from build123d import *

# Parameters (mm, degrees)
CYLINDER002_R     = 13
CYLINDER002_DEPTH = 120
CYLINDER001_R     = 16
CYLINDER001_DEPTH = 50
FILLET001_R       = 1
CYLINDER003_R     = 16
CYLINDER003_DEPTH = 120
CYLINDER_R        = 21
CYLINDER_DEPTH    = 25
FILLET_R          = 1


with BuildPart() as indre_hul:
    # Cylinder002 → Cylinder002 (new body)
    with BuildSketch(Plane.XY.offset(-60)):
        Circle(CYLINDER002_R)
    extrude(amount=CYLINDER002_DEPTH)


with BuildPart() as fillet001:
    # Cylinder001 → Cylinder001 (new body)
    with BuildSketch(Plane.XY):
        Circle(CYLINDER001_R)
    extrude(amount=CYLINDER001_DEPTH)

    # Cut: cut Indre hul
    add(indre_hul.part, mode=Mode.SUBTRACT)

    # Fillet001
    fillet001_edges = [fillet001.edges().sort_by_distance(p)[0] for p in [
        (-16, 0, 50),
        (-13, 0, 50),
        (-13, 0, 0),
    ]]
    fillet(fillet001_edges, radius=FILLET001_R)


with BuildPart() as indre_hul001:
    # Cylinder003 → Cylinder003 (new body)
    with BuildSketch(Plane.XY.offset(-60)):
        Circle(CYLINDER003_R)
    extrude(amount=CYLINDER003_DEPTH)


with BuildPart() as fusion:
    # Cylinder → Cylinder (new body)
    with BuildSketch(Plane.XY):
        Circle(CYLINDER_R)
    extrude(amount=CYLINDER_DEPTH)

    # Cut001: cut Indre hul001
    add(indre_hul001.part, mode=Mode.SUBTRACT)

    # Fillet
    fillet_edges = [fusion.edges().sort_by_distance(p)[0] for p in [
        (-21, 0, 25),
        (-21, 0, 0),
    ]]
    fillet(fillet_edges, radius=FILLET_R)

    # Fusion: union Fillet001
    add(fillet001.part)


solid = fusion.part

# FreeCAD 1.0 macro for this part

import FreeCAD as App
import Part
import Sketcher

V = App.Vector
Q = App.Units.Quantity


def edges_at(feature, points):
    """Names of the edges that pass closest to the given points."""
    edges = feature.Shape.Edges
    near = lambda p: min(range(len(edges)), key=lambda i: edges[i].distToShape(Part.Vertex(*p))[0])
    return sorted({f"Edge{near(p) + 1}" for p in points})

doc = App.newDocument("Part")
body = doc.addObject("PartDesign::Body", "Body")

sketch1 = body.newObject("Sketcher::SketchObject", "Sketch")
sketch1.AttachmentSupport = (doc.getObject("XY_Plane"), [""])
sketch1.MapMode = "FlatFace"
sketch1.AttachmentOffset = App.Placement(V(0, 0, -60), App.Rotation())
sketch1.addGeometry(Part.Circle(V(0, 0, 0), V(0, 0, 1), 13), False)
sketch1.addConstraint([
    Sketcher.Constraint("Coincident", 0, 3, -1, 1),
    Sketcher.Constraint("Diameter", 0, Q("26 mm")),
])
pad1 = body.newObject("PartDesign::Pad", "Pad")
pad1.Profile = sketch1
pad1.Length = 120
body2 = doc.addObject("PartDesign::Body", "Body001")

sketch2 = body2.newObject("Sketcher::SketchObject", "Sketch001")
sketch2.AttachmentSupport = (doc.getObject("XY_Plane001"), [""])
sketch2.MapMode = "FlatFace"
sketch2.addGeometry(Part.Circle(V(0, 0, 0), V(0, 0, 1), 16), False)
sketch2.addConstraint([
    Sketcher.Constraint("Coincident", 0, 3, -1, 1),
    Sketcher.Constraint("Diameter", 0, Q("32 mm")),
])
pad2 = body2.newObject("PartDesign::Pad", "Pad001")
pad2.Profile = sketch2
pad2.Length = 50
doc.recompute()

boolean = body2.newObject("PartDesign::Boolean", "Boolean")
boolean.Type = "Cut"
boolean.addObjects([body])
doc.recompute()

fillet = body2.newObject("PartDesign::Fillet", "Fillet")
fillet.Base = (boolean, edges_at(boolean, [(-16, 0, 50), (-13, 0, 50), (-13, 0, 0)]))
fillet.Radius = 1
body3 = doc.addObject("PartDesign::Body", "Body002")

sketch3 = body3.newObject("Sketcher::SketchObject", "Sketch002")
sketch3.AttachmentSupport = (doc.getObject("XY_Plane002"), [""])
sketch3.MapMode = "FlatFace"
sketch3.AttachmentOffset = App.Placement(V(0, 0, -60), App.Rotation())
sketch3.addGeometry(Part.Circle(V(0, 0, 0), V(0, 0, 1), 16), False)
sketch3.addConstraint([
    Sketcher.Constraint("Coincident", 0, 3, -1, 1),
    Sketcher.Constraint("Diameter", 0, Q("32 mm")),
])
pad3 = body3.newObject("PartDesign::Pad", "Pad002")
pad3.Profile = sketch3
pad3.Length = 120
body4 = doc.addObject("PartDesign::Body", "Body003")

sketch4 = body4.newObject("Sketcher::SketchObject", "Sketch003")
sketch4.AttachmentSupport = (doc.getObject("XY_Plane003"), [""])
sketch4.MapMode = "FlatFace"
sketch4.addGeometry(Part.Circle(V(0, 0, 0), V(0, 0, 1), 21), False)
sketch4.addConstraint([
    Sketcher.Constraint("Coincident", 0, 3, -1, 1),
    Sketcher.Constraint("Diameter", 0, Q("42 mm")),
])
pad4 = body4.newObject("PartDesign::Pad", "Pad003")
pad4.Profile = sketch4
pad4.Length = 25
doc.recompute()

boolean2 = body4.newObject("PartDesign::Boolean", "Boolean001")
boolean2.Type = "Cut"
boolean2.addObjects([body3])
doc.recompute()

fillet2 = body4.newObject("PartDesign::Fillet", "Fillet001")
fillet2.Base = (boolean2, edges_at(boolean2, [(-21, 0, 25), (-21, 0, 0)]))
fillet2.Radius = 1
doc.recompute()

boolean3 = body4.newObject("PartDesign::Boolean", "Boolean002")
boolean3.Type = "Fuse"
boolean3.addObjects([body2])

doc.recompute()
